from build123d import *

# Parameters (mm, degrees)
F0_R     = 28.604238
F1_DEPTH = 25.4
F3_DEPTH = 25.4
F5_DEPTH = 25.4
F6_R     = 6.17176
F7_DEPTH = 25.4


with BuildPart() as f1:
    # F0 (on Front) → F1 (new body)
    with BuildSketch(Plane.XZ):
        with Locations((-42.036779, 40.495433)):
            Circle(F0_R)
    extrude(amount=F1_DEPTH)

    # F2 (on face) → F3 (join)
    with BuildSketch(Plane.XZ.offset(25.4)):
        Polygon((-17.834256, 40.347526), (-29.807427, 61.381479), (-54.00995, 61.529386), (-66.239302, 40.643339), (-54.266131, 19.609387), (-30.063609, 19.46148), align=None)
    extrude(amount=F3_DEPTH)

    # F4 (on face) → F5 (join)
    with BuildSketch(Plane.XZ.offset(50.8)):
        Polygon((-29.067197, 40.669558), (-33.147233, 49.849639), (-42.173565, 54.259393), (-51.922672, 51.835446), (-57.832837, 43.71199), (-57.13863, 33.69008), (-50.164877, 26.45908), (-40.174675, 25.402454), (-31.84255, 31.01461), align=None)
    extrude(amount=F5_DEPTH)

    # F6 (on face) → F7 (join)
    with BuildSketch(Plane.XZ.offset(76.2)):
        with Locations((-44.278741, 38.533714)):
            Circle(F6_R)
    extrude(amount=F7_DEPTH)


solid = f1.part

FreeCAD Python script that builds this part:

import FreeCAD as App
import Part
import Sketcher

V = App.Vector
Q = App.Units.Quantity

doc = App.newDocument("Part")
body = doc.addObject("PartDesign::Body", "Body")

sketch1 = body.newObject("Sketcher::SketchObject", "Sketch")
sketch1.AttachmentSupport = (doc.getObject("XZ_Plane"), [""])
sketch1.MapMode = "FlatFace"
sketch1.addGeometry(Part.Circle(V(-42, 40, 0), V(0, 0, 1), 29), False)
sketch1.addConstraint(Sketcher.Constraint("Diameter", 0, 57.208476))
sketch1.addConstraint(Sketcher.Constraint("DistanceX", 0, 3, -1, 1, 42.036779))
sketch1.addConstraint(Sketcher.Constraint("DistanceY", -1, 1, 0, 3, 40.495433))
pad1 = body.newObject("PartDesign::Pad", "Pad")
pad1.Profile = sketch1
pad1.Length = Q("1 in")

sketch2 = body.newObject("Sketcher::SketchObject", "Sketch001")
sketch2.AttachmentSupport = (doc.getObject("XZ_Plane"), [""])
sketch2.MapMode = "FlatFace"
sketch2.AttachmentOffset = App.Placement(V(0, 0, 1 * 25.4), App.Rotation())
sketch2.addGeometry(Part.LineSegment(V(-18, 40, 0), V(-30, 61, 0)), False)
sketch2.addGeometry(Part.LineSegment(V(-30, 61, 0), V(-54, 62, 0)), False)
sketch2.addGeometry(Part.LineSegment(V(-54, 62, 0), V(-66, 41, 0)), False)
sketch2.addGeometry(Part.LineSegment(V(-66, 41, 0), V(-54, 20, 0)), False)
sketch2.addGeometry(Part.LineSegment(V(-54, 20, 0), V(-30, 19, 0)), False)
sketch2.addGeometry(Part.LineSegment(V(-30, 19, 0), V(-18, 40, 0)), False)
sketch2.addConstraint(Sketcher.Constraint("Coincident", 0, 2, 1, 1))
sketch2.addConstraint(Sketcher.Constraint("Coincident", 1, 2, 2, 1))
sketch2.addConstraint(Sketcher.Constraint("Coincident", 2, 2, 3, 1))
sketch2.addConstraint(Sketcher.Constraint("Coincident", 3, 2, 4, 1))
sketch2.addConstraint(Sketcher.Constraint("Coincident", 4, 2, 5, 1))
sketch2.addConstraint(Sketcher.Constraint("Coincident", 5, 2, 0, 1))
sketch2.addConstraint(Sketcher.Constraint("Parallel", 0, 3))
sketch2.addConstraint(Sketcher.Constraint("Parallel", 1, 4))
sketch2.addConstraint(Sketcher.Constraint("Parallel", 2, 5))
sketch2.addConstraint(Sketcher.Constraint("Equal", 0, 1))
sketch2.addConstraint(Sketcher.Constraint("Equal", 1, 2))
sketch2.addConstraint(Sketcher.Constraint("Equal", 2, 3))
sketch2.addConstraint(Sketcher.Constraint("DistanceY", -1, 1, 4, 2, Q("0.7662 in")))
sketch2.addConstraint(Sketcher.Constraint("DistanceX", 2, 2, -1, 1, 66.239302))
sketch2.addConstraint(Sketcher.Constraint("DistanceY", 3, 2, 1, 2, 41.919999))
sketch2.addConstraint(Sketcher.Constraint("DistanceX", 1, 2, -1, 1, 54.00995))
sketch2.addConstraint(Sketcher.Constraint("DistanceY", -1, 1, 2, 2, 40.643339))
sketch2.addConstraint(Sketcher.Constraint("DistanceX", 3, 2, -1, 1, 54.266131))
pad2 = body.newObject("PartDesign::Pad", "Pad001")
pad2.Profile = sketch2
pad2.Length = Q("1 in")

sketch3 = body.newObject("Sketcher::SketchObject", "Sketch002")
sketch3.AttachmentSupport = (doc.getObject("XZ_Plane"), [""])
sketch3.MapMode = "FlatFace"
sketch3.AttachmentOffset = App.Placement(V(0, 0, 2 * 25.4), App.Rotation())
sketch3.addGeometry(Part.LineSegment(V(-29, 41, 0), V(-33, 50, 0)), False)
sketch3.addGeometry(Part.LineSegment(V(-33, 50, 0), V(-42, 54, 0)), False)
sketch3.addGeometry(Part.LineSegment(V(-42, 54, 0), V(-52, 52, 0)), False)
sketch3.addGeometry(Part.LineSegment(V(-52, 52, 0), V(-58, 44, 0)), False)
sketch3.addGeometry(Part.LineSegment(V(-58, 44, 0), V(-57, 34, 0)), False)
sketch3.addGeometry(Part.LineSegment(V(-57, 34, 0), V(-50, 26, 0)), False)
sketch3.addGeometry(Part.LineSegment(V(-50, 26, 0), V(-40, 25, 0)), False)
sketch3.addGeometry(Part.LineSegment(V(-40, 25, 0), V(-32, 31, 0)), False)
sketch3.addGeometry(Part.LineSegment(V(-32, 31, 0), V(-29, 41, 0)), False)
sketch3.addConstraint(Sketcher.Constraint("Coincident", 0, 2, 1, 1))
sketch3.addConstraint(Sketcher.Constraint("Coincident", 1, 2, 2, 1))
sketch3.addConstraint(Sketcher.Constraint("Coincident", 2, 2, 3, 1))
sketch3.addConstraint(Sketcher.Constraint("Coincident", 3, 2, 4, 1))
sketch3.addConstraint(Sketcher.Constraint("Coincident", 4, 2, 5, 1))
sketch3.addConstraint(Sketcher.Constraint("Coincident", 5, 2, 6, 1))
sketch3.addConstraint(Sketcher.Constraint("Coincident", 6, 2, 7, 1))
sketch3.addConstraint(Sketcher.Constraint("Coincident", 7, 2, 8, 1))
sketch3.addConstraint(Sketcher.Constraint("Coincident", 8, 2, 0, 1))
sketch3.addConstraint(Sketcher.Constraint("Equal", 0, 1))
sketch3.addConstraint(Sketcher.Constraint("Equal", 1, 2))
sketch3.addConstraint(Sketcher.Constraint("Equal", 2, 3))
sketch3.addConstraint(Sketcher.Constraint("Equal", 3, 4))
sketch3.addConstraint(Sketcher.Constraint("Equal", 4, 5))
sketch3.addConstraint(Sketcher.Constraint("Equal", 5, 6))
sketch3.addConstraint(Sketcher.Constraint("Equal", 6, 7))
sketch3.addConstraint(Sketcher.Constraint("Equal", 7, 8))
sketch3.addConstraint(Sketcher.Constraint("DistanceY", 6, 2, 1, 2, Q("1.1361 in")))
sketch3.addConstraint(Sketcher.Constraint("DistanceY", 5, 2, 4, 2, 7.231))
sketch3.addConstraint(Sketcher.Constraint("DistanceX", 5, 2, 6, 2, 9.990202))
sketch3.addConstraint(Sketcher.Constraint("DistanceY", -1, 1, 0, 2, 49.849639))
sketch3.addConstraint(Sketcher.Constraint("DistanceY", -1, 1, 3, 2, 43.71199))
sketch3.addConstraint(Sketcher.Constraint("DistanceX", 4, 2, -1, 1, 57.13863))
sketch3.addConstraint(Sketcher.Constraint("DistanceY", -1, 1, 4, 2, 33.69008))
sketch3.addConstraint(Sketcher.Constraint("DistanceX", 7, 2, -1, 1, 31.84255))
sketch3.addConstraint(Sketcher.Constraint("DistanceY", -1, 1, 7, 2, 31.01461))
sketch3.addConstraint(Sketcher.Constraint("DistanceY", -1, 1, 8, 2, 40.669558))
pad3 = body.newObject("PartDesign::Pad", "Pad002")
pad3.Profile = sketch3
pad3.Length = Q("1 in")

sketch4 = body.newObject("Sketcher::SketchObject", "Sketch003")
sketch4.AttachmentSupport = (doc.getObject("XZ_Plane"), [""])
sketch4.MapMode = "FlatFace"
sketch4.AttachmentOffset = App.Placement(V(0, 0, 3 * 25.4), App.Rotation())
sketch4.addGeometry(Part.Circle(V(-44, 39, 0), V(0, 0, 1), 6), False)
sketch4.addConstraint(Sketcher.Constraint("Diameter", 0, 12.34352))
sketch4.addConstraint(Sketcher.Constraint("DistanceX", 0, 3, -1, 1, 44.278741))
sketch4.addConstraint(Sketcher.Constraint("DistanceY", -1, 1, 0, 3, 38.533714))
pad4 = body.newObject("PartDesign::Pad", "Pad003")
pad4.Profile = sketch4
pad4.Length = Q("1 in")

doc.recompute()
